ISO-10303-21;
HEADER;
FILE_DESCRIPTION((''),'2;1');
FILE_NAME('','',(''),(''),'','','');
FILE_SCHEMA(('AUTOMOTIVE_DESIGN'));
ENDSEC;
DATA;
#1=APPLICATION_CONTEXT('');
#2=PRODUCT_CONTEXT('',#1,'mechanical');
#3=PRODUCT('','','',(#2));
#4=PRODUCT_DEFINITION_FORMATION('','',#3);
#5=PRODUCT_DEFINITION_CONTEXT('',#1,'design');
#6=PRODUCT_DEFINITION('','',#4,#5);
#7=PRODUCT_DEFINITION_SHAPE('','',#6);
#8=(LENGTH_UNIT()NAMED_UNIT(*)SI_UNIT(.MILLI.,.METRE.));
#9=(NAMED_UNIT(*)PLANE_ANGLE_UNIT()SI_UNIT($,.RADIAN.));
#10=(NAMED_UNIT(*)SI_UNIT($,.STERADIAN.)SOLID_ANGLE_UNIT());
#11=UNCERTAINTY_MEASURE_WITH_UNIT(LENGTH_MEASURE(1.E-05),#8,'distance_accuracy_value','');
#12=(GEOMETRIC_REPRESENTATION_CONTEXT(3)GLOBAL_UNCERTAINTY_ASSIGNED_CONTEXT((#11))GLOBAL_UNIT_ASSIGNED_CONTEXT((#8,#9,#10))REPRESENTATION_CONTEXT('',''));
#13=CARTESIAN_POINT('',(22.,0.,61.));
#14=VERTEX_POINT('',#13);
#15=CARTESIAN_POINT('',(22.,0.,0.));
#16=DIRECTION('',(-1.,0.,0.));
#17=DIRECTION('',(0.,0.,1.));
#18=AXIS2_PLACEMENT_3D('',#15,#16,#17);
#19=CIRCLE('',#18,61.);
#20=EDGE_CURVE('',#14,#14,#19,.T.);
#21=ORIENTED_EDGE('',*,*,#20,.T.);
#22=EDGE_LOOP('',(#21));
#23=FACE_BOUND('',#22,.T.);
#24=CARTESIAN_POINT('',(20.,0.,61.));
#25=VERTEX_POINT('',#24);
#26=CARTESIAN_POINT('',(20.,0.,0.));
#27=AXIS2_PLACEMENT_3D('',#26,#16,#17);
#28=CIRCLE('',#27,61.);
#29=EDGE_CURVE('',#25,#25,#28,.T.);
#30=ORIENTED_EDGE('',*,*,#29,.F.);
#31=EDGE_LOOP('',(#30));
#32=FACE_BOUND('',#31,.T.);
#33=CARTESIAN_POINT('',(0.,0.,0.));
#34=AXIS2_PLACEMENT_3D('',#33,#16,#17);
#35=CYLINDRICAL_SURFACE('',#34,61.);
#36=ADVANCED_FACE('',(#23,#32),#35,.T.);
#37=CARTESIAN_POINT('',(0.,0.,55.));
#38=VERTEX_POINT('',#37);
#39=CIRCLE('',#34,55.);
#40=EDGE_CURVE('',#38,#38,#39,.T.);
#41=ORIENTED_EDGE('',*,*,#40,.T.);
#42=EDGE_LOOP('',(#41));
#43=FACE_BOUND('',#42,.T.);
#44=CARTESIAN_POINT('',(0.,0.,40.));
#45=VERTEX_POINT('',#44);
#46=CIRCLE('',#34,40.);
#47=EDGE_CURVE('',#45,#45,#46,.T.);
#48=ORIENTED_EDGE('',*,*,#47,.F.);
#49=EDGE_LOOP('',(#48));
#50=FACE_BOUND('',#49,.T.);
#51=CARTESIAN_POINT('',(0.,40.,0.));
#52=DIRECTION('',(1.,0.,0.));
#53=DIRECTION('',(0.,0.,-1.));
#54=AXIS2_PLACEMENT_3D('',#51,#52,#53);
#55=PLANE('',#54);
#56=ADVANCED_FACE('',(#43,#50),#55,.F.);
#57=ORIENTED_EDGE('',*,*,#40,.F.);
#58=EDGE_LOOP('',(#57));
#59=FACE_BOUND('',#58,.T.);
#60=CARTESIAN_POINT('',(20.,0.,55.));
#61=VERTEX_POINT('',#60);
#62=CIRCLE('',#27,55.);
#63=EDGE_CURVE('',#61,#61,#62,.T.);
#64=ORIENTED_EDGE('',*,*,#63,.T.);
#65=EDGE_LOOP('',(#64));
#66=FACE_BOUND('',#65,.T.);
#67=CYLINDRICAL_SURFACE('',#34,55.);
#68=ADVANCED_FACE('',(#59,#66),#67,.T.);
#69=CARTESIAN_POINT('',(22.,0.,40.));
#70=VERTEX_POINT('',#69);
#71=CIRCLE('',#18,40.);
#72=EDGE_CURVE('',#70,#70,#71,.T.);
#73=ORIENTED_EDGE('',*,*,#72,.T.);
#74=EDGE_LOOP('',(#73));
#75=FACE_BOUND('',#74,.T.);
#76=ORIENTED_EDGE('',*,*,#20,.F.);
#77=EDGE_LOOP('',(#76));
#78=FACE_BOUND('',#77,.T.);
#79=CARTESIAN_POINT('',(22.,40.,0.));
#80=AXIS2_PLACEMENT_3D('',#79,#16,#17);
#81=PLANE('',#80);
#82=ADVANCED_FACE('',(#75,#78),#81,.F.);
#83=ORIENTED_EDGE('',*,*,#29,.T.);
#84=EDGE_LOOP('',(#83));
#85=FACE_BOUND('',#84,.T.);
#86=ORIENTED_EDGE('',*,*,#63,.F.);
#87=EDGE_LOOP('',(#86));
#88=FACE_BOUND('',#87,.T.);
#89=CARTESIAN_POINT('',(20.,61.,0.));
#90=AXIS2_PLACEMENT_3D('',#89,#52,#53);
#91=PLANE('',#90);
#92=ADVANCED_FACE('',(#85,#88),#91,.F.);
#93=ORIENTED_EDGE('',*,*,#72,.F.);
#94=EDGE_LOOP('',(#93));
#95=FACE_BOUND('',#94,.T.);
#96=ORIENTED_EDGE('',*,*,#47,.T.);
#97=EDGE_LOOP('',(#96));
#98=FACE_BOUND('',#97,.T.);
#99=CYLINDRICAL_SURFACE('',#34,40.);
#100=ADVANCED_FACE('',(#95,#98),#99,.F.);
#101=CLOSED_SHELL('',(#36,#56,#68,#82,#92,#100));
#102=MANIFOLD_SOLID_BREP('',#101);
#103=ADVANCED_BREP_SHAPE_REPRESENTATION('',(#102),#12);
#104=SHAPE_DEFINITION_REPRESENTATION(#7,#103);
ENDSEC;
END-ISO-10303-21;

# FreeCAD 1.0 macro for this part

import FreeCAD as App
import Part
import Sketcher

V = App.Vector
Q = App.Units.Quantity

doc = App.newDocument("Part")
params = doc.addObject("Spreadsheet::Sheet", "Params")
for row, (alias, value) in enumerate([
    ("sketch1_width", "22 mm"),
    ("sketch1_width2", "2 mm"),
    ("sketch1_height", "21 mm"),
    ("sketch1_height2", "6 mm"),
    ("revolution_angle", "360 deg"),
], start=1):
    params.set(f"A{row}", alias)
    params.set(f"B{row}", "=" + value)
    params.setAlias(f"B{row}", alias)

body = doc.addObject("PartDesign::Body", "Body")

# Sketch on XY plane
sketch1 = doc.addObject("Sketcher::SketchObject", "Sketch")
body.addObject(sketch1)
sketch1.AttachmentSupport = (doc.XY_Plane, [""])
sketch1.MapMode = "FlatFace"
sketch1.addGeometry([
    Part.LineSegment(V(0, 40, 0), V(22, 40, 0)),  # 0
    Part.LineSegment(V(22, 40, 0), V(22, 61, 0)),  # 1
    Part.LineSegment(V(22, 61, 0), V(20, 61, 0)),  # 2
    Part.LineSegment(V(20, 61, 0), V(20, 55, 0)),  # 3
    Part.LineSegment(V(20, 55, 0), V(0, 55, 0)),  # 4
    Part.LineSegment(V(0, 55, 0), V(0, 40, 0)),  # 5
], False)
sketch1.addConstraint([
    Sketcher.Constraint("Coincident", 0, 2, 1, 1),
    Sketcher.Constraint("Coincident", 1, 2, 2, 1),
    Sketcher.Constraint("Coincident", 2, 2, 3, 1),
    Sketcher.Constraint("Coincident", 3, 2, 4, 1),
    Sketcher.Constraint("Coincident", 4, 2, 5, 1),
    Sketcher.Constraint("Coincident", 5, 2, 0, 1),
    Sketcher.Constraint("Horizontal", 0),
    Sketcher.Constraint("Vertical", 1),
    Sketcher.Constraint("Horizontal", 2),
    Sketcher.Constraint("Vertical", 3),
    Sketcher.Constraint("Horizontal", 4),
    Sketcher.Constraint("Vertical", 5),
    Sketcher.Constraint("PointOnObject", 4, 2, -2),
    Sketcher.Constraint("DistanceX", 0, 1, 0, 2, Q("22 mm")),
    Sketcher.Constraint("DistanceX", 2, 2, 2, 1, Q("2 mm")),
    Sketcher.Constraint("DistanceY", 1, 1, 1, 2, Q("21 mm")),
    Sketcher.Constraint("DistanceY", 3, 2, 3, 1, Q("6 mm")),
    Sketcher.Constraint("DistanceY", -1, 1, 0, 2, Q("40 mm")),
])
sketch1.setExpression("Constraints[13]", "Params.sketch1_width")
sketch1.setExpression("Constraints[14]", "Params.sketch1_width2")
sketch1.setExpression("Constraints[15]", "Params.sketch1_height")
sketch1.setExpression("Constraints[16]", "Params.sketch1_height2")
revolution = doc.addObject("PartDesign::Revolution", "Revolution")
body.addObject(revolution)
revolution.Profile = sketch1
revolution.ReferenceAxis = (sketch1, ["H_Axis"])
revolution.setExpression("Angle", "Params.revolution_angle")

doc.recompute()
